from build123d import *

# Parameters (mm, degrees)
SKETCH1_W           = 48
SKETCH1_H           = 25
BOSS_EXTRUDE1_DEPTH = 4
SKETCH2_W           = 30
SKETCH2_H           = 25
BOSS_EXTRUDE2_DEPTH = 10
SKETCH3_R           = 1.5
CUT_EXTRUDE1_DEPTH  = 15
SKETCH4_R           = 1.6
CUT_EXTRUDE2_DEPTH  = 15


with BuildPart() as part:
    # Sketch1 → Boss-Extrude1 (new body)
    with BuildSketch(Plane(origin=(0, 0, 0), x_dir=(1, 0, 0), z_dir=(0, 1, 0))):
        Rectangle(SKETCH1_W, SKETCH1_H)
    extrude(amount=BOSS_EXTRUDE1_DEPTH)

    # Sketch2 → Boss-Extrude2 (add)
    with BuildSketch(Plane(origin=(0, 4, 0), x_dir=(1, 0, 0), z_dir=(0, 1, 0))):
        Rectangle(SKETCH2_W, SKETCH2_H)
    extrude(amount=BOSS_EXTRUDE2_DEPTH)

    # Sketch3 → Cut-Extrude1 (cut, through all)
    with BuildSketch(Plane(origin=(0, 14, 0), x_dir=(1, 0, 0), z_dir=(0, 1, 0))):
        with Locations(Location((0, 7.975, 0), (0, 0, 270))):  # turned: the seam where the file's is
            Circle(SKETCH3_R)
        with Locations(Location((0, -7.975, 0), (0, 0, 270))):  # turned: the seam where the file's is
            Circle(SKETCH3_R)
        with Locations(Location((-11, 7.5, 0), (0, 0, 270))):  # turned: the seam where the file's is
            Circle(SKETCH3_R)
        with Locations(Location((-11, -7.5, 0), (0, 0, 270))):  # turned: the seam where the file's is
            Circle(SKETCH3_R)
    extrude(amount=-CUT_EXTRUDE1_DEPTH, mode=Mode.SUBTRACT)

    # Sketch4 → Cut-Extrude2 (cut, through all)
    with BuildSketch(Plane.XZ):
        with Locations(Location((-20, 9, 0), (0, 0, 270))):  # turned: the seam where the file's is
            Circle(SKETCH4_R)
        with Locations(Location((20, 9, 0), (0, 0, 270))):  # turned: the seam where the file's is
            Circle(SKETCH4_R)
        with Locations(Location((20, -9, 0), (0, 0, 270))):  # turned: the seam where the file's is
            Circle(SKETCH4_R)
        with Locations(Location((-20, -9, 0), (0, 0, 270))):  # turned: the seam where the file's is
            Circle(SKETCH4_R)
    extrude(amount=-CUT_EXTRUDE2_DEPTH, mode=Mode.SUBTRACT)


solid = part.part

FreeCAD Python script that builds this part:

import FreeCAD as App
import Part
import Sketcher

doc = App.newDocument("Part")
body = doc.addObject("PartDesign::Body", "Body")

# Sketch on XZ plane
sketch1 = doc.addObject("Sketcher::SketchObject", "Sketch")
body.addObject(sketch1)
sketch1.AttachmentSupport = (doc.XZ_Plane, [""])
sketch1.MapMode = "FlatFace"
sketch1.addGeometry([
    Part.LineSegment(App.Vector(-24, -12, 0), App.Vector(-24, 12, 0)),
    Part.LineSegment(App.Vector(-24, 12, 0), App.Vector(24, 12, 0)),
    Part.LineSegment(App.Vector(24, 12, 0), App.Vector(24, -12, 0)),
    Part.LineSegment(App.Vector(24, -12, 0), App.Vector(-24, -12, 0)),
], False)
sketch1.addConstraint([
    Sketcher.Constraint("Coincident", 0, 2, 1, 1),
    Sketcher.Constraint("Coincident", 1, 2, 2, 1),
    Sketcher.Constraint("Coincident", 2, 2, 3, 1),
    Sketcher.Constraint("Coincident", 3, 2, 0, 1),
    Sketcher.Constraint("Vertical", 0),
    Sketcher.Constraint("Horizontal", 1),
    Sketcher.Constraint("Vertical", 2),
    Sketcher.Constraint("Horizontal", 3),
    Sketcher.Constraint("Symmetric", 0, 2, 2, 2, -1, 1),
    Sketcher.Constraint("DistanceX", 1, 1, 1, 2, 48.0),
    Sketcher.Constraint("DistanceY", 0, 1, 0, 2, 25.0),
])
pad1 = doc.addObject("PartDesign::Pad", "Pad")
body.addObject(pad1)
pad1.Profile = sketch1
pad1.Length = 4
pad1.Reversed = True

# Sketch on XZ plane
sketch2 = doc.addObject("Sketcher::SketchObject", "Sketch001")
body.addObject(sketch2)
sketch2.AttachmentSupport = (doc.XZ_Plane, [""])
sketch2.MapMode = "FlatFace"
sketch2.AttachmentOffset = App.Placement(App.Vector(0, 0, -4), App.Rotation())
sketch2.addGeometry([
    Part.LineSegment(App.Vector(-15, -12, 0), App.Vector(-15, 12, 0)),
    Part.LineSegment(App.Vector(-15, 12, 0), App.Vector(15, 12, 0)),
    Part.LineSegment(App.Vector(15, 12, 0), App.Vector(15, -12, 0)),
    Part.LineSegment(App.Vector(15, -12, 0), App.Vector(-15, -12, 0)),
], False)
sketch2.addConstraint([
    Sketcher.Constraint("Coincident", 0, 2, 1, 1),
    Sketcher.Constraint("Coincident", 1, 2, 2, 1),
    Sketcher.Constraint("Coincident", 2, 2, 3, 1),
    Sketcher.Constraint("Coincident", 3, 2, 0, 1),
    Sketcher.Constraint("Vertical", 0),
    Sketcher.Constraint("Horizontal", 1),
    Sketcher.Constraint("Vertical", 2),
    Sketcher.Constraint("Horizontal", 3),
    Sketcher.Constraint("Symmetric", 0, 2, 2, 2, -1, 1),
    Sketcher.Constraint("DistanceX", 1, 1, 1, 2, 30.0),
    Sketcher.Constraint("DistanceY", 0, 1, 0, 2, 25.0),
])
pad2 = doc.addObject("PartDesign::Pad", "Pad001")
body.addObject(pad2)
pad2.Profile = sketch2
pad2.Length = 10
pad2.Reversed = True

# Sketch on XZ plane
sketch3 = doc.addObject("Sketcher::SketchObject", "Sketch002")
body.addObject(sketch3)
sketch3.AttachmentSupport = (doc.XZ_Plane, [""])
sketch3.MapMode = "FlatFace"
sketch3.AttachmentOffset = App.Placement(App.Vector(0, 0, -14), App.Rotation())
sketch3.addGeometry([
    Part.Circle(App.Vector(0, -8, 0), App.Vector(0, 0, 1), 1.5),
    Part.Circle(App.Vector(0, 8, 0), App.Vector(0, 0, 1), 1.5),
    Part.Circle(App.Vector(-11, -7.5, 0), App.Vector(0, 0, 1), 1.5),
    Part.Circle(App.Vector(-11, 7.5, 0), App.Vector(0, 0, 1), 1.5),
], False)
sketch3.addConstraint([
    Sketcher.Constraint("Equal", 0, 1),
    Sketcher.Constraint("Equal", 1, 2),
    Sketcher.Constraint("Equal", 2, 3),
    Sketcher.Constraint("Symmetric", 0, 3, 1, 3, -1, 1),
    Sketcher.Constraint("Symmetric", 2, 3, 3, 3, -1),
    Sketcher.Constraint("PointOnObject", 0, 3, -2),
    Sketcher.Constraint("Diameter", 0, 3.0),
    Sketcher.Constraint("DistanceX", 2, 3, -1, 1, 11.0),
    Sketcher.Constraint("DistanceY", 2, 3, 3, 3, 15.0),
    Sketcher.Constraint("DistanceY", 0, 3, 1, 3, 15.95),
])
pocket1 = doc.addObject("PartDesign::Pocket", "Pocket")
body.addObject(pocket1)
pocket1.Profile = sketch3
pocket1.Type = "ThroughAll"
pocket1.Reversed = True

# Sketch on XZ plane
sketch4 = doc.addObject("Sketcher::SketchObject", "Sketch003")
body.addObject(sketch4)
sketch4.AttachmentSupport = (doc.XZ_Plane, [""])
sketch4.MapMode = "FlatFace"
sketch4.addGeometry([
    Part.Circle(App.Vector(-20, 9, 0), App.Vector(0, 0, 1), 1.6),
    Part.Circle(App.Vector(20, 9, 0), App.Vector(0, 0, 1), 1.6),
    Part.Circle(App.Vector(20, -9, 0), App.Vector(0, 0, 1), 1.6),
    Part.Circle(App.Vector(-20, -9, 0), App.Vector(0, 0, 1), 1.6),
], False)
sketch4.addConstraint([
    Sketcher.Constraint("Equal", 0, 1),
    Sketcher.Constraint("Equal", 1, 2),
    Sketcher.Constraint("Equal", 2, 3),
    Sketcher.Constraint("Symmetric", 0, 3, 2, 3, -1, 1),
    Sketcher.Constraint("Symmetric", 1, 3, 3, 3, -1, 1),
    Sketcher.Constraint("Symmetric", 0, 3, 1, 3, -2),
    Sketcher.Constraint("Diameter", 0, 3.2),
    Sketcher.Constraint("DistanceX", 0, 3, -1, 1, 20.0),
    Sketcher.Constraint("DistanceY", -1, 1, 0, 3, 9.0),
])
pocket2 = doc.addObject("PartDesign::Pocket", "Pocket001")
body.addObject(pocket2)
pocket2.Profile = sketch4
pocket2.Type = "ThroughAll"

doc.recompute()
